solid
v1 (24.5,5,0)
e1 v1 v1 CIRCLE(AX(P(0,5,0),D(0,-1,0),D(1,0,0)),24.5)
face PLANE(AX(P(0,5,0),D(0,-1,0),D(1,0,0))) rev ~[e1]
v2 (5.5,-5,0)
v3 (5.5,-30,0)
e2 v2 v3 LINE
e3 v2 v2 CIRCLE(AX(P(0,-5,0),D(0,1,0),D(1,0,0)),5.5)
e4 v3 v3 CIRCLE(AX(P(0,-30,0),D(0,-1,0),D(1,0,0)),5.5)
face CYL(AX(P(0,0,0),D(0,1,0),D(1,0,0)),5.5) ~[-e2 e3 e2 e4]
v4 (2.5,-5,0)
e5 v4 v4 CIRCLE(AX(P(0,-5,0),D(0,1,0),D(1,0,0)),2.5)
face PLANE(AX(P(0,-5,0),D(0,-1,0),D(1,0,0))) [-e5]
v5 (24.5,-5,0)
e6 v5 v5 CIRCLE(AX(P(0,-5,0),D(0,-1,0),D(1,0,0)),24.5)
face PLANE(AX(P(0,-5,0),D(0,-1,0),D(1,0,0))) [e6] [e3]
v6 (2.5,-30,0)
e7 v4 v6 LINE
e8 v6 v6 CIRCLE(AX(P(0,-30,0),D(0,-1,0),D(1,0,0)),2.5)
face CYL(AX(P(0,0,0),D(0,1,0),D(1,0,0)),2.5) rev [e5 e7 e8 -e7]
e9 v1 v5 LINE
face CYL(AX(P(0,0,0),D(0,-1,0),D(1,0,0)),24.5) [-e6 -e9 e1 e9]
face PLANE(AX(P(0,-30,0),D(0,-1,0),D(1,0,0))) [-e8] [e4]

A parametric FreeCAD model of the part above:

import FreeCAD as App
import Part
import Sketcher

V = App.Vector
Q = App.Units.Quantity

doc = App.newDocument("Part")
params = doc.addObject("Spreadsheet::Sheet", "Params")
for row, (alias, value) in enumerate([
    ("sketch1_diameter", "49 mm"),
    ("pad1_length", "10 mm"),
    ("sketch2_diameter", "11 mm"),
    ("sketch2_diameter2", "5 mm"),
    ("pad2_length", "30 mm"),
], start=1):
    params.set(f"A{row}", alias)
    params.set(f"B{row}", "=" + value)
    params.setAlias(f"B{row}", alias)

body = doc.addObject("PartDesign::Body", "Body")

# Sketch on XZ plane
sketch1 = doc.addObject("Sketcher::SketchObject", "Sketch")
body.addObject(sketch1)
sketch1.AttachmentSupport = (doc.XZ_Plane, [""])
sketch1.MapMode = "FlatFace"
sketch1.addGeometry(Part.Circle(V(0, 0, 0), V(0, 0, 1), 24), False)
sketch1.addConstraint([
    Sketcher.Constraint("Coincident", 0, 3, -1, 1),
    Sketcher.Constraint("Diameter", 0, Q("49 mm")),
])
sketch1.setExpression("Constraints[1]", "Params.sketch1_diameter")
pad1 = doc.addObject("PartDesign::Pad", "Pad")
body.addObject(pad1)
pad1.Profile = sketch1
pad1.setExpression("Length", "Params.pad1_length")
pad1.Midplane = True

# Sketch on XZ plane
sketch2 = doc.addObject("Sketcher::SketchObject", "Sketch001")
body.addObject(sketch2)
sketch2.AttachmentSupport = (doc.XZ_Plane, [""])
sketch2.MapMode = "FlatFace"
sketch2.addGeometry([
    Part.Circle(V(0, 0, 0), V(0, 0, 1), 5.5),
    Part.Circle(V(0, 0, 0), V(0, 0, 1), 2.5),
], False)
sketch2.addConstraint([
    Sketcher.Constraint("Coincident", 0, 3, -1, 1),
    Sketcher.Constraint("Coincident", 1, 3, -1, 1),
    Sketcher.Constraint("Diameter", 0, Q("11 mm")),
    Sketcher.Constraint("Diameter", 1, Q("5 mm")),
])
sketch2.setExpression("Constraints[2]", "Params.sketch2_diameter")
sketch2.setExpression("Constraints[3]", "Params.sketch2_diameter2")
pad2 = doc.addObject("PartDesign::Pad", "Pad001")
body.addObject(pad2)
pad2.Profile = sketch2
pad2.setExpression("Length", "Params.pad2_length")

doc.recompute()
